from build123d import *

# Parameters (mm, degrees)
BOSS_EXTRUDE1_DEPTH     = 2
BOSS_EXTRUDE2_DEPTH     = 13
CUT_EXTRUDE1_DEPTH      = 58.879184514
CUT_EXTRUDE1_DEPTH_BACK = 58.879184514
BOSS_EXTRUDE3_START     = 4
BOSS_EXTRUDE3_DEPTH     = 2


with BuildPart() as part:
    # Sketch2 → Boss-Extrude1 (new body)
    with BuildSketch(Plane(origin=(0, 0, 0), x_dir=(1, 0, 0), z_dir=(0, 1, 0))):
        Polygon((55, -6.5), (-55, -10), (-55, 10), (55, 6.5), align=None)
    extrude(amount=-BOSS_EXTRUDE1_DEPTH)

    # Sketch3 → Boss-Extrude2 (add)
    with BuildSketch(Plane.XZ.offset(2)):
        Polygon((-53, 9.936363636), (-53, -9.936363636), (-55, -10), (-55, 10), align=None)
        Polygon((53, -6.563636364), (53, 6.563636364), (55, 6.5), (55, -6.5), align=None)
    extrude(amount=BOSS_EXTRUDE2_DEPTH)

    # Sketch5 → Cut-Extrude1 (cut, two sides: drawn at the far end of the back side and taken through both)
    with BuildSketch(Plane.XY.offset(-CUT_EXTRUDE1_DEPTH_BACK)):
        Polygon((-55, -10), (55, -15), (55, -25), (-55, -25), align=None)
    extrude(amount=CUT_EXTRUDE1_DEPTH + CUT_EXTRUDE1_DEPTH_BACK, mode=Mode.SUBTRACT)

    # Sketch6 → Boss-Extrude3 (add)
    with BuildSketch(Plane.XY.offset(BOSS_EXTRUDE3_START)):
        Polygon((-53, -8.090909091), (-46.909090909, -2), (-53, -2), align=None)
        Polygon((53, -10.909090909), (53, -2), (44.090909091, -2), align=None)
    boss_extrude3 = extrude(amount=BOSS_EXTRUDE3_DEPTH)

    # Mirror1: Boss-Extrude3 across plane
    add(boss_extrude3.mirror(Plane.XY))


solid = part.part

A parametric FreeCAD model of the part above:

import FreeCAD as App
import Part
import Sketcher

V = App.Vector
Q = App.Units.Quantity


def add_polygon(sketch, points):
    """Adds a closed chain of lines whose ends are joined by coincident constraints."""
    first, n = sketch.GeometryCount, len(points)
    for a, b in zip(points, points[1:] + points[:1]):
        sketch.addGeometry(Part.LineSegment(App.Vector(*a, 0), App.Vector(*b, 0)), False)
    for i in range(n):
        sketch.addConstraint(Sketcher.Constraint("Coincident", first + i, 2, first + (i + 1) % n, 1))

doc = App.newDocument("Part")
body = doc.addObject("PartDesign::Body", "Body")

sketch1 = doc.addObject("Sketcher::SketchObject", "Sketch")
body.addObject(sketch1)
sketch1.AttachmentSupport = (doc.XZ_Plane, [""])
sketch1.MapMode = "FlatFace"
add_polygon(sketch1, [(-55, 10), (55, 6), (55, -6), (-55, -10)])
sketch1.addConstraint([
    Sketcher.Constraint("Vertical", 1),
    Sketcher.Constraint("Vertical", 3),
    Sketcher.Constraint("Equal", 0, 2),
    Sketcher.Constraint("DistanceY", 1, 2, 1, 1, Q("13 mm")),
    Sketcher.Constraint("DistanceY", 3, 1, 3, 2, Q("20 mm")),
    Sketcher.Constraint("DistanceX", -1, 1, 0, 2, Q("55 mm")),
    Sketcher.Constraint("DistanceX", 2, 2, -1, 1, Q("55 mm")),
    Sketcher.Constraint("DistanceY", 2, 2, -1, 1, Q("10 mm")),
])
pad1 = doc.addObject("PartDesign::Pad", "Pad")
body.addObject(pad1)
pad1.Profile = sketch1
pad1.Length = 2

sketch2 = doc.addObject("Sketcher::SketchObject", "Sketch001")
body.addObject(sketch2)
sketch2.AttachmentSupport = (doc.XZ_Plane, [""])
sketch2.MapMode = "FlatFace"
sketch2.AttachmentOffset = App.Placement(V(0, 0, 2), App.Rotation())
add_polygon(sketch2, [(-53, -9.9), (-53, 9.9), (-55, 10), (-55, -10)])
add_polygon(sketch2, [(53, 6.6), (53, -6.6), (55, -6.5), (55, 6.5)])
sketch2.addConstraint([
    Sketcher.Constraint("Vertical", 0),
    Sketcher.Constraint("Vertical", 2),
    Sketcher.Constraint("Vertical", 4),
    Sketcher.Constraint("Vertical", 6),
    Sketcher.Constraint("Parallel", 3, 5),
    Sketcher.Constraint("Parallel", 1, 7),
    Sketcher.Constraint("Equal", 1, 3),
    Sketcher.Constraint("Equal", 3, 5),
    Sketcher.Constraint("DistanceY", 2, 2, 2, 1, Q("20 mm")),
    Sketcher.Constraint("DistanceY", 6, 1, 6, 2, Q("13 mm")),
    Sketcher.Constraint("DistanceX", 0, 2, -1, 1, Q("53 mm")),
    Sketcher.Constraint("DistanceX", 1, 2, -1, 1, Q("55 mm")),
    Sketcher.Constraint("DistanceY", -1, 1, 1, 2, Q("10 mm")),
    Sketcher.Constraint("DistanceX", -1, 1, 4, 2, Q("53 mm")),
    Sketcher.Constraint("DistanceY", 5, 2, -1, 1, Q("6.5 mm")),
    Sketcher.Constraint("DistanceY", 0, 1, 0, 2, Q("19.872727 mm")),
])
pad2 = doc.addObject("PartDesign::Pad", "Pad001")
body.addObject(pad2)
pad2.Profile = sketch2
pad2.Length = 13

sketch3 = doc.addObject("Sketcher::SketchObject", "Sketch002")
body.addObject(sketch3)
sketch3.AttachmentSupport = (doc.XY_Plane, [""])
sketch3.MapMode = "FlatFace"
add_polygon(sketch3, [(55, -15), (-55, -10), (-55, -25), (55, -25)])
sketch3.addConstraint([
    Sketcher.Constraint("Vertical", 1),
    Sketcher.Constraint("Horizontal", 2),
    Sketcher.Constraint("Vertical", 3),
    Sketcher.Constraint("DistanceX", 2, 1, 2, 2, Q("110 mm")),
    Sketcher.Constraint("DistanceY", 1, 2, 1, 1, Q("15 mm")),
    Sketcher.Constraint("DistanceY", 3, 1, 3, 2, Q("10 mm")),
    Sketcher.Constraint("DistanceX", 0, 2, -1, 1, Q("55 mm")),
    Sketcher.Constraint("DistanceY", 0, 2, -1, 1, Q("10 mm")),
])
pocket1 = doc.addObject("PartDesign::Pocket", "Pocket")
body.addObject(pocket1)
pocket1.Profile = sketch3
pocket1.Type = "ThroughAll"
pocket1.Midplane = True

sketch4 = doc.addObject("Sketcher::SketchObject", "Sketch003")
body.addObject(sketch4)
sketch4.AttachmentSupport = (doc.XY_Plane, [""])
sketch4.MapMode = "FlatFace"
sketch4.AttachmentOffset = App.Placement(V(0, 0, 4), App.Rotation())
add_polygon(sketch4, [(-53, -8), (-47, -2), (-53, -2)])
add_polygon(sketch4, [(53, -11), (53, -2), (44, -2)])
sketch4.addConstraint([
    Sketcher.Constraint("Horizontal", 1),
    Sketcher.Constraint("Vertical", 2),
    Sketcher.Constraint("Vertical", 3),
    Sketcher.Constraint("Horizontal", 4),
    Sketcher.Constraint("Symmetric", 1, 2, 3, 2, -2),
    Sketcher.Constraint("Perpendicular", 0, 5),
    Sketcher.Constraint("Equal", 1, 2),
    Sketcher.Constraint("DistanceY", 0, 2, -1, 1, Q("2 mm")),
    Sketcher.Constraint("DistanceX", 1, 2, -1, 1, Q("53 mm")),
    Sketcher.Constraint("DistanceX", 0, 2, 4, 2, Q("91 mm")),
    Sketcher.Constraint("DistanceX", 1, 2, 1, 1, Q("6.090909 mm")),
])
pad3 = doc.addObject("PartDesign::Pad", "Pad002")
body.addObject(pad3)
pad3.Profile = sketch4
pad3.Length = 2
doc.recompute()

mirrored = doc.addObject("PartDesign::Mirrored", "Mirrored")
body.addObject(mirrored)
mirrored.Originals = [pad3]
mirrored.MirrorPlane = (doc.XY_Plane, [""])
body.Tip = mirrored

doc.recompute()
